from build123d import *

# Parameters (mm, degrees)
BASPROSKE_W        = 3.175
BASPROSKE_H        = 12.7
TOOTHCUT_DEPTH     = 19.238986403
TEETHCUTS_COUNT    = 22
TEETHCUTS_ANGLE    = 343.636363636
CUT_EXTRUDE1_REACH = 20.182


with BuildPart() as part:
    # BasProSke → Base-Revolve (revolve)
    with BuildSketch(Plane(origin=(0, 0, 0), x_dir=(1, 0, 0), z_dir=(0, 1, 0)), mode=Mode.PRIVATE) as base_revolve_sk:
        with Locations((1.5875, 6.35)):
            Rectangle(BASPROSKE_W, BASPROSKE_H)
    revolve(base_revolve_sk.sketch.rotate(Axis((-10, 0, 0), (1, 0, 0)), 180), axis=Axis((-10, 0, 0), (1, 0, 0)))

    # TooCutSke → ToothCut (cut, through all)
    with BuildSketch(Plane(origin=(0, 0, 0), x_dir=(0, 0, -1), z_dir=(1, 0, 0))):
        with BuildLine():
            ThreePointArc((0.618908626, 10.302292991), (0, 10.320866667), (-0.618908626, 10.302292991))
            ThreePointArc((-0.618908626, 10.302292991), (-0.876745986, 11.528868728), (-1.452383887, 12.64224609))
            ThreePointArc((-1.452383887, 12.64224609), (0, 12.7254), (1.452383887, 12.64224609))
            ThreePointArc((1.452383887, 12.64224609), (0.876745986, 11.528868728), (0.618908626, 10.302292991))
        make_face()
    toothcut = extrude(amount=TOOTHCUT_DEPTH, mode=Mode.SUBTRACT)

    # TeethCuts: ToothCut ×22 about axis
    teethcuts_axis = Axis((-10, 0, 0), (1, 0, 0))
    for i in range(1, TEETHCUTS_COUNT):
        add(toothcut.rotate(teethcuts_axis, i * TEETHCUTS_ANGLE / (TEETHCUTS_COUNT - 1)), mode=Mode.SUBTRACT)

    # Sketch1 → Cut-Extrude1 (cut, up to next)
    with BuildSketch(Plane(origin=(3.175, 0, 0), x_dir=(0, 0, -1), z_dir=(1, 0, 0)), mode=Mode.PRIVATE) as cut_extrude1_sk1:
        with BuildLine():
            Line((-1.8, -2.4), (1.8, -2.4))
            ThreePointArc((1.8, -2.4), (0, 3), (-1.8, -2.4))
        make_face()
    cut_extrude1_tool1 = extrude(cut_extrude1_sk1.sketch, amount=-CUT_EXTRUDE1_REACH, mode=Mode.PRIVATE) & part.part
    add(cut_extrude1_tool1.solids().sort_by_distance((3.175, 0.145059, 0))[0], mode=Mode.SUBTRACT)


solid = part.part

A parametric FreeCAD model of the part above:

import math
import FreeCAD as App
import Part
import Sketcher

V = App.Vector
Q = App.Units.Quantity

doc = App.newDocument("Part")
body = doc.addObject("PartDesign::Body", "Body")

# Sketch on XZ plane
sketch1 = doc.addObject("Sketcher::SketchObject", "Sketch")
body.addObject(sketch1)
sketch1.AttachmentSupport = (doc.XZ_Plane, [""])
sketch1.MapMode = "FlatFace"
sketch1.addGeometry([
    Part.LineSegment(V(0, -12.7, 0), V(0, 0, 0)),
    Part.LineSegment(V(0, 0, 0), V(3.2, 0, 0)),
    Part.LineSegment(V(3.2, 0, 0), V(3.2, -12.7, 0)),
    Part.LineSegment(V(3.2, -12.7, 0), V(0, -12.7, 0)),
], False)
sketch1.addConstraint([
    Sketcher.Constraint("Coincident", 0, 2, 1, 1),
    Sketcher.Constraint("Coincident", 1, 2, 2, 1),
    Sketcher.Constraint("Coincident", 2, 2, 3, 1),
    Sketcher.Constraint("Coincident", 3, 2, 0, 1),
    Sketcher.Constraint("Vertical", 0),
    Sketcher.Constraint("Horizontal", 1),
    Sketcher.Constraint("Vertical", 2),
    Sketcher.Constraint("Horizontal", 3),
    Sketcher.Constraint("Coincident", 0, 2, -1, 1),
    Sketcher.Constraint("DistanceY", 0, 1, 0, 2, Q("0.5 in")),
    Sketcher.Constraint("DistanceX", 1, 1, 1, 2, Q("0.125 in")),
])
revolution = doc.addObject("PartDesign::Revolution", "Revolution")
body.addObject(revolution)
revolution.Profile = sketch1
revolution.ReferenceAxis = (sketch1, ["H_Axis"])
revolution.Angle = 360

# Sketch on YZ plane
sketch2 = doc.addObject("Sketcher::SketchObject", "Sketch001")
body.addObject(sketch2)
sketch2.AttachmentSupport = (doc.YZ_Plane, [""])
sketch2.MapMode = "FlatFace"
sketch2.addGeometry([
    Part.ArcOfCircle(Part.Circle(V(0, 0, 0), V(0, 0, 1), 10.3), math.radians(-3.44), math.radians(3.44)),
    Part.ArcOfCircle(Part.Circle(V(10, -5.3, 0), V(0, 0, 1), 4.7), math.radians(55), math.radians(86)),
    Part.ArcOfCircle(Part.Circle(V(0, 0, 0), V(0, 0, 1), 12.7), math.radians(-6.55), math.radians(6.55)),
    Part.ArcOfCircle(Part.Circle(V(10, 5.3, 0), V(0, 0, 1), 4.7), math.radians(-86), math.radians(-55)),
], False)
sketch2.addConstraint([
    Sketcher.Constraint("Coincident", 0, 1, 1, 2),
    Sketcher.Constraint("Coincident", 1, 1, 2, 1),
    Sketcher.Constraint("Coincident", 2, 2, 3, 2),
    Sketcher.Constraint("Coincident", 3, 1, 0, 2),
    Sketcher.Constraint("Coincident", 0, 3, -1, 1),
    Sketcher.Constraint("Coincident", 2, 3, -1, 1),
    Sketcher.Constraint("Equal", 1, 3),
    Sketcher.Constraint("Symmetric", 1, 3, 3, 3, -1),
    Sketcher.Constraint("Radius", 2, Q("0.501 in")),
    Sketcher.Constraint("Radius", 0, Q("10.320867 mm")),
    Sketcher.Constraint("Radius", 1, Q("4.656667 mm")),
    Sketcher.Constraint("DistanceY", 0, 1, -1, 1, Q("0.618909 mm")),
    Sketcher.Constraint("DistanceY", 0, 1, 3, 3, Q("5.882351 mm")),
])
pocket1 = doc.addObject("PartDesign::Pocket", "Pocket")
body.addObject(pocket1)
pocket1.Profile = sketch2
pocket1.Type = "ThroughAll"
pocket1.Reversed = True
doc.recompute()

polarpattern = doc.addObject("PartDesign::PolarPattern", "PolarPattern")
body.addObject(polarpattern)
polarpattern.Originals = [pocket1]
polarpattern.Axis = (doc.X_Axis, [""])
polarpattern.Angle = 360
polarpattern.Occurrences = 22
body.Tip = polarpattern

# Sketch on YZ plane
sketch3 = doc.addObject("Sketcher::SketchObject", "Sketch002")
body.addObject(sketch3)
sketch3.AttachmentSupport = (doc.YZ_Plane, [""])
sketch3.MapMode = "FlatFace"
sketch3.AttachmentOffset = App.Placement(V(0, 0, 0.125 * 25.4), App.Rotation())
sketch3.addGeometry([
    Part.LineSegment(V(-2.4, 1.8, 0), V(-2.4, -1.8, 0)),
    Part.ArcOfCircle(Part.Circle(V(0, 0, 0), V(0, 0, 1), 3), math.radians(-143), math.radians(143)),
], False)
sketch3.addConstraint([
    Sketcher.Constraint("Coincident", 0, 1, 1, 2),
    Sketcher.Constraint("Coincident", 1, 1, 0, 2),
    Sketcher.Constraint("Vertical", 0),
    Sketcher.Constraint("Coincident", 1, 3, -1, 1),
    Sketcher.Constraint("Radius", 1, Q("3 mm")),
    Sketcher.Constraint("DistanceY", 0, 2, 0, 1, Q("3.6 mm")),
])
pocket2 = doc.addObject("PartDesign::Pocket", "Pocket001")
body.addObject(pocket2)
pocket2.Profile = sketch3
pocket2.Type = "UpToFirst"

doc.recompute()
